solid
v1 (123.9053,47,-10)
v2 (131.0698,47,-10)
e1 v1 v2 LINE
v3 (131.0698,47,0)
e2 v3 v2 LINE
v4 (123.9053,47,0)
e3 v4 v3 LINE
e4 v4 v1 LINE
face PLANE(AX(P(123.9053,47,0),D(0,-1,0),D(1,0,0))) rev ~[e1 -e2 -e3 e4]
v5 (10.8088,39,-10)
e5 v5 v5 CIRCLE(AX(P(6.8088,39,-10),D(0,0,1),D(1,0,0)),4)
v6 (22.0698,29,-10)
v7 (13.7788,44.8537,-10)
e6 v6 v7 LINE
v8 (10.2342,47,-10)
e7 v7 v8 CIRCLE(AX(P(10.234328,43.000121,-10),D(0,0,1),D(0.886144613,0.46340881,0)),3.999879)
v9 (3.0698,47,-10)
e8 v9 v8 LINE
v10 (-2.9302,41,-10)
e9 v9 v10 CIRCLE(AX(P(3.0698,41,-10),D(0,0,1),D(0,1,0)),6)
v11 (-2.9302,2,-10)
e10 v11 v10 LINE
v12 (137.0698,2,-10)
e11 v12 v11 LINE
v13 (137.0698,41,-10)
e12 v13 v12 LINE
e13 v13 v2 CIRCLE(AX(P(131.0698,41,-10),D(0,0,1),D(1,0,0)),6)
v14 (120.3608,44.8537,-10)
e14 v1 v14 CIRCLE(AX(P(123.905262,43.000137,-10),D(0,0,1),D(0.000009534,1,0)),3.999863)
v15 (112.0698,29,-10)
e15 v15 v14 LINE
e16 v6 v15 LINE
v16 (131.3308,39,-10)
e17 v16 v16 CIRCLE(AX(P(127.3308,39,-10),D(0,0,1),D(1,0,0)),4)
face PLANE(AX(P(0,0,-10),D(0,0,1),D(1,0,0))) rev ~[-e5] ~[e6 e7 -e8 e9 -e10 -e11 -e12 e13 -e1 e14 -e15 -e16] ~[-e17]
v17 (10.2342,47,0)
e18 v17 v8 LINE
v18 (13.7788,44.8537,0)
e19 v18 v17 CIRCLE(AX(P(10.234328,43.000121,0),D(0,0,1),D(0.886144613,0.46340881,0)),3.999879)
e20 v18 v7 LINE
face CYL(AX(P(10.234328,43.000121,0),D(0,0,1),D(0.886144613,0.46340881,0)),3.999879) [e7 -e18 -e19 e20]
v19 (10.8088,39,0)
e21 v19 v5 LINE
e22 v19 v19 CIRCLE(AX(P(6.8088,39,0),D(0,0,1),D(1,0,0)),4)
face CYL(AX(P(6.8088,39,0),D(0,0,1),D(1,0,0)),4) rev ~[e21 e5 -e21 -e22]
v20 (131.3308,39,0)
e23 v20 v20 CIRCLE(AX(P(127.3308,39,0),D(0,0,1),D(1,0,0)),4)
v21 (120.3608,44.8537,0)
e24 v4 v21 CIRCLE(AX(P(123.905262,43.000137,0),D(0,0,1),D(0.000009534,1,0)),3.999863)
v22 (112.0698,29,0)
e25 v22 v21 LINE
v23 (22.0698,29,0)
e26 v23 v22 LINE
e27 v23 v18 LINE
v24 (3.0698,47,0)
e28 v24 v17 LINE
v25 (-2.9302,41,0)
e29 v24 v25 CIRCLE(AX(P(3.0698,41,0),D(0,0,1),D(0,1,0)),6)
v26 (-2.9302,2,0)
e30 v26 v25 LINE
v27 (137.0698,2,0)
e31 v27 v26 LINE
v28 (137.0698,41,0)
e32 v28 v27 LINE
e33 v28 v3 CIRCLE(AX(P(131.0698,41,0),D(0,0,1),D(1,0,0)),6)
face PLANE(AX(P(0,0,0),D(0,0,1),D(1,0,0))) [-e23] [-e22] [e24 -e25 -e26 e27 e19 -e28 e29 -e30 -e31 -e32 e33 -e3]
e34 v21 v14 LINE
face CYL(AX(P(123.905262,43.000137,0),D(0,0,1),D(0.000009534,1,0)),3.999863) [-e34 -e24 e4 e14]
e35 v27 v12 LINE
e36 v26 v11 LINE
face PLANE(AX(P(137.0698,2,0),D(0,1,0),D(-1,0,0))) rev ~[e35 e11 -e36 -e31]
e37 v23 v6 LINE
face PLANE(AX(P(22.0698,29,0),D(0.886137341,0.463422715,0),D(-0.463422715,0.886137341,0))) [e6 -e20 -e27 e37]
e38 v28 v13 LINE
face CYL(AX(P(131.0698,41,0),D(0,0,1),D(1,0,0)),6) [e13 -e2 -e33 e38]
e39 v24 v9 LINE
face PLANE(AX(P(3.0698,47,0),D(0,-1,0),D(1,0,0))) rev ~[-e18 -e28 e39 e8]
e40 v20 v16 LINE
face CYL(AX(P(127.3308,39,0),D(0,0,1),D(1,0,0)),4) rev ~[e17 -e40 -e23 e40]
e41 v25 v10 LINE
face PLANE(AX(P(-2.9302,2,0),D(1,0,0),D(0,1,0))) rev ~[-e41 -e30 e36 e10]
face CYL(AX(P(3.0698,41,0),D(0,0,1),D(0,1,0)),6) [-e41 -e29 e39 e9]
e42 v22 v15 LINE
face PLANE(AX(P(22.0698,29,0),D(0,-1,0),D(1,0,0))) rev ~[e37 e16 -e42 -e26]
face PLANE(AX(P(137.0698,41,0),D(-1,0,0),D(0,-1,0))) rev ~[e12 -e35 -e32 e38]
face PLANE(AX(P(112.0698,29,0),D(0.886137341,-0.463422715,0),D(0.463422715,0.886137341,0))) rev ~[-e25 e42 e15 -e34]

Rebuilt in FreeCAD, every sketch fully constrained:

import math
import FreeCAD as App
import Part
import Sketcher
Q = App.Units.Quantity

doc = App.newDocument("Part")
body = doc.addObject("PartDesign::Body", "Body")

# Sketch on XY plane
sketch1 = doc.addObject("Sketcher::SketchObject", "Sketch")
body.addObject(sketch1)
sketch1.AttachmentSupport = (doc.XY_Plane, [""])
sketch1.MapMode = "FlatFace"
sketch1.addGeometry(Part.LineSegment(App.Vector(137.1, 2, 0), App.Vector(137.1, 41, 0)), False)
sketch1.addGeometry(Part.ArcOfCircle(Part.Circle(App.Vector(131.1, 41, 0), App.Vector(0, 0, 1), 6), math.radians(0), math.radians(90)), False)
sketch1.addGeometry(Part.LineSegment(App.Vector(131.1, 47, 0), App.Vector(123.9, 47, 0)), False)
sketch1.addGeometry(Part.ArcOfCircle(Part.Circle(App.Vector(123.9, 43, 0), App.Vector(0, 0, 1), 4), math.radians(90), math.radians(152)), False)
sketch1.addGeometry(Part.LineSegment(App.Vector(120.4, 44.9, 0), App.Vector(112.1, 29, 0)), False)
sketch1.addGeometry(Part.LineSegment(App.Vector(112.1, 29, 0), App.Vector(22.1, 29, 0)), False)
sketch1.addGeometry(Part.LineSegment(App.Vector(22.1, 29, 0), App.Vector(13.8, 44.9, 0)), False)
sketch1.addGeometry(Part.ArcOfCircle(Part.Circle(App.Vector(10.2, 43, 0), App.Vector(0, 0, 1), 4), math.radians(28), math.radians(90)), False)
sketch1.addGeometry(Part.LineSegment(App.Vector(10.2, 47, 0), App.Vector(3.1, 47, 0)), False)
sketch1.addGeometry(Part.ArcOfCircle(Part.Circle(App.Vector(3.1, 41, 0), App.Vector(0, 0, 1), 6), math.radians(90), math.radians(180)), False)
sketch1.addGeometry(Part.LineSegment(App.Vector(-2.9, 41, 0), App.Vector(-2.9, 2, 0)), False)
sketch1.addGeometry(Part.LineSegment(App.Vector(-2.9, 2, 0), App.Vector(137.1, 2, 0)), False)
sketch1.addGeometry(Part.Circle(App.Vector(6.8, 39, 0), App.Vector(0, 0, 1), 4), False)
sketch1.addGeometry(Part.Circle(App.Vector(127.3, 39, 0), App.Vector(0, 0, 1), 4), False)
sketch1.addConstraint(Sketcher.Constraint("Tangent", 0, 2, 1, 1))
sketch1.addConstraint(Sketcher.Constraint("Tangent", 1, 2, 2, 1))
sketch1.addConstraint(Sketcher.Constraint("Tangent", 2, 2, 3, 1))
sketch1.addConstraint(Sketcher.Constraint("Tangent", 3, 2, 4, 1))
sketch1.addConstraint(Sketcher.Constraint("Coincident", 4, 2, 5, 1))
sketch1.addConstraint(Sketcher.Constraint("Coincident", 5, 2, 6, 1))
sketch1.addConstraint(Sketcher.Constraint("Tangent", 6, 2, 7, 1))
sketch1.addConstraint(Sketcher.Constraint("Tangent", 7, 2, 8, 1))
sketch1.addConstraint(Sketcher.Constraint("Tangent", 8, 2, 9, 1))
sketch1.addConstraint(Sketcher.Constraint("Tangent", 9, 2, 10, 1))
sketch1.addConstraint(Sketcher.Constraint("Coincident", 10, 2, 11, 1))
sketch1.addConstraint(Sketcher.Constraint("Coincident", 11, 2, 0, 1))
sketch1.addConstraint(Sketcher.Constraint("Vertical", 0))
sketch1.addConstraint(Sketcher.Constraint("Horizontal", 2))
sketch1.addConstraint(Sketcher.Constraint("Horizontal", 5))
sketch1.addConstraint(Sketcher.Constraint("Horizontal", 8))
sketch1.addConstraint(Sketcher.Constraint("Vertical", 10))
sketch1.addConstraint(Sketcher.Constraint("Horizontal", 11))
sketch1.addConstraint(Sketcher.Constraint("Equal", 3, 7))
sketch1.addConstraint(Sketcher.Constraint("Equal", 1, 9))
sketch1.addConstraint(Sketcher.Constraint("Equal", 7, 12))
sketch1.addConstraint(Sketcher.Constraint("Equal", 12, 13))
sketch1.addConstraint(Sketcher.Constraint("Horizontal", 3, 3, 7, 3))
sketch1.addConstraint(Sketcher.Constraint("Horizontal", 12, 3, 13, 3))
sketch1.addConstraint(Sketcher.Constraint("Horizontal", 3, 2, 6, 2))
sketch1.addConstraint(Sketcher.Constraint("Equal", 2, 8))
sketch1.addConstraint(Sketcher.Constraint("Diameter", 12, Q("8 mm")))
sketch1.addConstraint(Sketcher.Constraint("Radius", 1, Q("6 mm")))
sketch1.addConstraint(Sketcher.Constraint("DistanceX", 11, 1, 11, 2, Q("140 mm")))
sketch1.addConstraint(Sketcher.Constraint("DistanceY", 12, 3, 7, 3, Q("4 mm")))
sketch1.addConstraint(Sketcher.Constraint("DistanceX", 10, 2, 5, 2, Q("25 mm")))
sketch1.addConstraint(Sketcher.Constraint("DistanceY", 0, 1, 0, 2, Q("39 mm")))
sketch1.addConstraint(Sketcher.Constraint("DistanceY", -1, 1, 1, 3, Q("41 mm")))
sketch1.addConstraint(Sketcher.Constraint("DistanceY", -1, 1, 4, 2, Q("29 mm")))
sketch1.addConstraint(Sketcher.Constraint("DistanceX", 12, 3, 13, 3, Q("120.522 mm")))
sketch1.addConstraint(Sketcher.Constraint("DistanceX", 3, 2, 13, 3, Q("6.97 mm")))
sketch1.addConstraint(Sketcher.Constraint("DistanceX", 12, 3, 6, 2, Q("6.97 mm")))
sketch1.addConstraint(Sketcher.Constraint("DistanceX", -1, 1, 1, 3, Q("131.0698 mm")))
pad1 = doc.addObject("PartDesign::Pad", "Pad")
body.addObject(pad1)
pad1.Profile = sketch1
pad1.Length = 10
pad1.Reversed = True

doc.recompute()
